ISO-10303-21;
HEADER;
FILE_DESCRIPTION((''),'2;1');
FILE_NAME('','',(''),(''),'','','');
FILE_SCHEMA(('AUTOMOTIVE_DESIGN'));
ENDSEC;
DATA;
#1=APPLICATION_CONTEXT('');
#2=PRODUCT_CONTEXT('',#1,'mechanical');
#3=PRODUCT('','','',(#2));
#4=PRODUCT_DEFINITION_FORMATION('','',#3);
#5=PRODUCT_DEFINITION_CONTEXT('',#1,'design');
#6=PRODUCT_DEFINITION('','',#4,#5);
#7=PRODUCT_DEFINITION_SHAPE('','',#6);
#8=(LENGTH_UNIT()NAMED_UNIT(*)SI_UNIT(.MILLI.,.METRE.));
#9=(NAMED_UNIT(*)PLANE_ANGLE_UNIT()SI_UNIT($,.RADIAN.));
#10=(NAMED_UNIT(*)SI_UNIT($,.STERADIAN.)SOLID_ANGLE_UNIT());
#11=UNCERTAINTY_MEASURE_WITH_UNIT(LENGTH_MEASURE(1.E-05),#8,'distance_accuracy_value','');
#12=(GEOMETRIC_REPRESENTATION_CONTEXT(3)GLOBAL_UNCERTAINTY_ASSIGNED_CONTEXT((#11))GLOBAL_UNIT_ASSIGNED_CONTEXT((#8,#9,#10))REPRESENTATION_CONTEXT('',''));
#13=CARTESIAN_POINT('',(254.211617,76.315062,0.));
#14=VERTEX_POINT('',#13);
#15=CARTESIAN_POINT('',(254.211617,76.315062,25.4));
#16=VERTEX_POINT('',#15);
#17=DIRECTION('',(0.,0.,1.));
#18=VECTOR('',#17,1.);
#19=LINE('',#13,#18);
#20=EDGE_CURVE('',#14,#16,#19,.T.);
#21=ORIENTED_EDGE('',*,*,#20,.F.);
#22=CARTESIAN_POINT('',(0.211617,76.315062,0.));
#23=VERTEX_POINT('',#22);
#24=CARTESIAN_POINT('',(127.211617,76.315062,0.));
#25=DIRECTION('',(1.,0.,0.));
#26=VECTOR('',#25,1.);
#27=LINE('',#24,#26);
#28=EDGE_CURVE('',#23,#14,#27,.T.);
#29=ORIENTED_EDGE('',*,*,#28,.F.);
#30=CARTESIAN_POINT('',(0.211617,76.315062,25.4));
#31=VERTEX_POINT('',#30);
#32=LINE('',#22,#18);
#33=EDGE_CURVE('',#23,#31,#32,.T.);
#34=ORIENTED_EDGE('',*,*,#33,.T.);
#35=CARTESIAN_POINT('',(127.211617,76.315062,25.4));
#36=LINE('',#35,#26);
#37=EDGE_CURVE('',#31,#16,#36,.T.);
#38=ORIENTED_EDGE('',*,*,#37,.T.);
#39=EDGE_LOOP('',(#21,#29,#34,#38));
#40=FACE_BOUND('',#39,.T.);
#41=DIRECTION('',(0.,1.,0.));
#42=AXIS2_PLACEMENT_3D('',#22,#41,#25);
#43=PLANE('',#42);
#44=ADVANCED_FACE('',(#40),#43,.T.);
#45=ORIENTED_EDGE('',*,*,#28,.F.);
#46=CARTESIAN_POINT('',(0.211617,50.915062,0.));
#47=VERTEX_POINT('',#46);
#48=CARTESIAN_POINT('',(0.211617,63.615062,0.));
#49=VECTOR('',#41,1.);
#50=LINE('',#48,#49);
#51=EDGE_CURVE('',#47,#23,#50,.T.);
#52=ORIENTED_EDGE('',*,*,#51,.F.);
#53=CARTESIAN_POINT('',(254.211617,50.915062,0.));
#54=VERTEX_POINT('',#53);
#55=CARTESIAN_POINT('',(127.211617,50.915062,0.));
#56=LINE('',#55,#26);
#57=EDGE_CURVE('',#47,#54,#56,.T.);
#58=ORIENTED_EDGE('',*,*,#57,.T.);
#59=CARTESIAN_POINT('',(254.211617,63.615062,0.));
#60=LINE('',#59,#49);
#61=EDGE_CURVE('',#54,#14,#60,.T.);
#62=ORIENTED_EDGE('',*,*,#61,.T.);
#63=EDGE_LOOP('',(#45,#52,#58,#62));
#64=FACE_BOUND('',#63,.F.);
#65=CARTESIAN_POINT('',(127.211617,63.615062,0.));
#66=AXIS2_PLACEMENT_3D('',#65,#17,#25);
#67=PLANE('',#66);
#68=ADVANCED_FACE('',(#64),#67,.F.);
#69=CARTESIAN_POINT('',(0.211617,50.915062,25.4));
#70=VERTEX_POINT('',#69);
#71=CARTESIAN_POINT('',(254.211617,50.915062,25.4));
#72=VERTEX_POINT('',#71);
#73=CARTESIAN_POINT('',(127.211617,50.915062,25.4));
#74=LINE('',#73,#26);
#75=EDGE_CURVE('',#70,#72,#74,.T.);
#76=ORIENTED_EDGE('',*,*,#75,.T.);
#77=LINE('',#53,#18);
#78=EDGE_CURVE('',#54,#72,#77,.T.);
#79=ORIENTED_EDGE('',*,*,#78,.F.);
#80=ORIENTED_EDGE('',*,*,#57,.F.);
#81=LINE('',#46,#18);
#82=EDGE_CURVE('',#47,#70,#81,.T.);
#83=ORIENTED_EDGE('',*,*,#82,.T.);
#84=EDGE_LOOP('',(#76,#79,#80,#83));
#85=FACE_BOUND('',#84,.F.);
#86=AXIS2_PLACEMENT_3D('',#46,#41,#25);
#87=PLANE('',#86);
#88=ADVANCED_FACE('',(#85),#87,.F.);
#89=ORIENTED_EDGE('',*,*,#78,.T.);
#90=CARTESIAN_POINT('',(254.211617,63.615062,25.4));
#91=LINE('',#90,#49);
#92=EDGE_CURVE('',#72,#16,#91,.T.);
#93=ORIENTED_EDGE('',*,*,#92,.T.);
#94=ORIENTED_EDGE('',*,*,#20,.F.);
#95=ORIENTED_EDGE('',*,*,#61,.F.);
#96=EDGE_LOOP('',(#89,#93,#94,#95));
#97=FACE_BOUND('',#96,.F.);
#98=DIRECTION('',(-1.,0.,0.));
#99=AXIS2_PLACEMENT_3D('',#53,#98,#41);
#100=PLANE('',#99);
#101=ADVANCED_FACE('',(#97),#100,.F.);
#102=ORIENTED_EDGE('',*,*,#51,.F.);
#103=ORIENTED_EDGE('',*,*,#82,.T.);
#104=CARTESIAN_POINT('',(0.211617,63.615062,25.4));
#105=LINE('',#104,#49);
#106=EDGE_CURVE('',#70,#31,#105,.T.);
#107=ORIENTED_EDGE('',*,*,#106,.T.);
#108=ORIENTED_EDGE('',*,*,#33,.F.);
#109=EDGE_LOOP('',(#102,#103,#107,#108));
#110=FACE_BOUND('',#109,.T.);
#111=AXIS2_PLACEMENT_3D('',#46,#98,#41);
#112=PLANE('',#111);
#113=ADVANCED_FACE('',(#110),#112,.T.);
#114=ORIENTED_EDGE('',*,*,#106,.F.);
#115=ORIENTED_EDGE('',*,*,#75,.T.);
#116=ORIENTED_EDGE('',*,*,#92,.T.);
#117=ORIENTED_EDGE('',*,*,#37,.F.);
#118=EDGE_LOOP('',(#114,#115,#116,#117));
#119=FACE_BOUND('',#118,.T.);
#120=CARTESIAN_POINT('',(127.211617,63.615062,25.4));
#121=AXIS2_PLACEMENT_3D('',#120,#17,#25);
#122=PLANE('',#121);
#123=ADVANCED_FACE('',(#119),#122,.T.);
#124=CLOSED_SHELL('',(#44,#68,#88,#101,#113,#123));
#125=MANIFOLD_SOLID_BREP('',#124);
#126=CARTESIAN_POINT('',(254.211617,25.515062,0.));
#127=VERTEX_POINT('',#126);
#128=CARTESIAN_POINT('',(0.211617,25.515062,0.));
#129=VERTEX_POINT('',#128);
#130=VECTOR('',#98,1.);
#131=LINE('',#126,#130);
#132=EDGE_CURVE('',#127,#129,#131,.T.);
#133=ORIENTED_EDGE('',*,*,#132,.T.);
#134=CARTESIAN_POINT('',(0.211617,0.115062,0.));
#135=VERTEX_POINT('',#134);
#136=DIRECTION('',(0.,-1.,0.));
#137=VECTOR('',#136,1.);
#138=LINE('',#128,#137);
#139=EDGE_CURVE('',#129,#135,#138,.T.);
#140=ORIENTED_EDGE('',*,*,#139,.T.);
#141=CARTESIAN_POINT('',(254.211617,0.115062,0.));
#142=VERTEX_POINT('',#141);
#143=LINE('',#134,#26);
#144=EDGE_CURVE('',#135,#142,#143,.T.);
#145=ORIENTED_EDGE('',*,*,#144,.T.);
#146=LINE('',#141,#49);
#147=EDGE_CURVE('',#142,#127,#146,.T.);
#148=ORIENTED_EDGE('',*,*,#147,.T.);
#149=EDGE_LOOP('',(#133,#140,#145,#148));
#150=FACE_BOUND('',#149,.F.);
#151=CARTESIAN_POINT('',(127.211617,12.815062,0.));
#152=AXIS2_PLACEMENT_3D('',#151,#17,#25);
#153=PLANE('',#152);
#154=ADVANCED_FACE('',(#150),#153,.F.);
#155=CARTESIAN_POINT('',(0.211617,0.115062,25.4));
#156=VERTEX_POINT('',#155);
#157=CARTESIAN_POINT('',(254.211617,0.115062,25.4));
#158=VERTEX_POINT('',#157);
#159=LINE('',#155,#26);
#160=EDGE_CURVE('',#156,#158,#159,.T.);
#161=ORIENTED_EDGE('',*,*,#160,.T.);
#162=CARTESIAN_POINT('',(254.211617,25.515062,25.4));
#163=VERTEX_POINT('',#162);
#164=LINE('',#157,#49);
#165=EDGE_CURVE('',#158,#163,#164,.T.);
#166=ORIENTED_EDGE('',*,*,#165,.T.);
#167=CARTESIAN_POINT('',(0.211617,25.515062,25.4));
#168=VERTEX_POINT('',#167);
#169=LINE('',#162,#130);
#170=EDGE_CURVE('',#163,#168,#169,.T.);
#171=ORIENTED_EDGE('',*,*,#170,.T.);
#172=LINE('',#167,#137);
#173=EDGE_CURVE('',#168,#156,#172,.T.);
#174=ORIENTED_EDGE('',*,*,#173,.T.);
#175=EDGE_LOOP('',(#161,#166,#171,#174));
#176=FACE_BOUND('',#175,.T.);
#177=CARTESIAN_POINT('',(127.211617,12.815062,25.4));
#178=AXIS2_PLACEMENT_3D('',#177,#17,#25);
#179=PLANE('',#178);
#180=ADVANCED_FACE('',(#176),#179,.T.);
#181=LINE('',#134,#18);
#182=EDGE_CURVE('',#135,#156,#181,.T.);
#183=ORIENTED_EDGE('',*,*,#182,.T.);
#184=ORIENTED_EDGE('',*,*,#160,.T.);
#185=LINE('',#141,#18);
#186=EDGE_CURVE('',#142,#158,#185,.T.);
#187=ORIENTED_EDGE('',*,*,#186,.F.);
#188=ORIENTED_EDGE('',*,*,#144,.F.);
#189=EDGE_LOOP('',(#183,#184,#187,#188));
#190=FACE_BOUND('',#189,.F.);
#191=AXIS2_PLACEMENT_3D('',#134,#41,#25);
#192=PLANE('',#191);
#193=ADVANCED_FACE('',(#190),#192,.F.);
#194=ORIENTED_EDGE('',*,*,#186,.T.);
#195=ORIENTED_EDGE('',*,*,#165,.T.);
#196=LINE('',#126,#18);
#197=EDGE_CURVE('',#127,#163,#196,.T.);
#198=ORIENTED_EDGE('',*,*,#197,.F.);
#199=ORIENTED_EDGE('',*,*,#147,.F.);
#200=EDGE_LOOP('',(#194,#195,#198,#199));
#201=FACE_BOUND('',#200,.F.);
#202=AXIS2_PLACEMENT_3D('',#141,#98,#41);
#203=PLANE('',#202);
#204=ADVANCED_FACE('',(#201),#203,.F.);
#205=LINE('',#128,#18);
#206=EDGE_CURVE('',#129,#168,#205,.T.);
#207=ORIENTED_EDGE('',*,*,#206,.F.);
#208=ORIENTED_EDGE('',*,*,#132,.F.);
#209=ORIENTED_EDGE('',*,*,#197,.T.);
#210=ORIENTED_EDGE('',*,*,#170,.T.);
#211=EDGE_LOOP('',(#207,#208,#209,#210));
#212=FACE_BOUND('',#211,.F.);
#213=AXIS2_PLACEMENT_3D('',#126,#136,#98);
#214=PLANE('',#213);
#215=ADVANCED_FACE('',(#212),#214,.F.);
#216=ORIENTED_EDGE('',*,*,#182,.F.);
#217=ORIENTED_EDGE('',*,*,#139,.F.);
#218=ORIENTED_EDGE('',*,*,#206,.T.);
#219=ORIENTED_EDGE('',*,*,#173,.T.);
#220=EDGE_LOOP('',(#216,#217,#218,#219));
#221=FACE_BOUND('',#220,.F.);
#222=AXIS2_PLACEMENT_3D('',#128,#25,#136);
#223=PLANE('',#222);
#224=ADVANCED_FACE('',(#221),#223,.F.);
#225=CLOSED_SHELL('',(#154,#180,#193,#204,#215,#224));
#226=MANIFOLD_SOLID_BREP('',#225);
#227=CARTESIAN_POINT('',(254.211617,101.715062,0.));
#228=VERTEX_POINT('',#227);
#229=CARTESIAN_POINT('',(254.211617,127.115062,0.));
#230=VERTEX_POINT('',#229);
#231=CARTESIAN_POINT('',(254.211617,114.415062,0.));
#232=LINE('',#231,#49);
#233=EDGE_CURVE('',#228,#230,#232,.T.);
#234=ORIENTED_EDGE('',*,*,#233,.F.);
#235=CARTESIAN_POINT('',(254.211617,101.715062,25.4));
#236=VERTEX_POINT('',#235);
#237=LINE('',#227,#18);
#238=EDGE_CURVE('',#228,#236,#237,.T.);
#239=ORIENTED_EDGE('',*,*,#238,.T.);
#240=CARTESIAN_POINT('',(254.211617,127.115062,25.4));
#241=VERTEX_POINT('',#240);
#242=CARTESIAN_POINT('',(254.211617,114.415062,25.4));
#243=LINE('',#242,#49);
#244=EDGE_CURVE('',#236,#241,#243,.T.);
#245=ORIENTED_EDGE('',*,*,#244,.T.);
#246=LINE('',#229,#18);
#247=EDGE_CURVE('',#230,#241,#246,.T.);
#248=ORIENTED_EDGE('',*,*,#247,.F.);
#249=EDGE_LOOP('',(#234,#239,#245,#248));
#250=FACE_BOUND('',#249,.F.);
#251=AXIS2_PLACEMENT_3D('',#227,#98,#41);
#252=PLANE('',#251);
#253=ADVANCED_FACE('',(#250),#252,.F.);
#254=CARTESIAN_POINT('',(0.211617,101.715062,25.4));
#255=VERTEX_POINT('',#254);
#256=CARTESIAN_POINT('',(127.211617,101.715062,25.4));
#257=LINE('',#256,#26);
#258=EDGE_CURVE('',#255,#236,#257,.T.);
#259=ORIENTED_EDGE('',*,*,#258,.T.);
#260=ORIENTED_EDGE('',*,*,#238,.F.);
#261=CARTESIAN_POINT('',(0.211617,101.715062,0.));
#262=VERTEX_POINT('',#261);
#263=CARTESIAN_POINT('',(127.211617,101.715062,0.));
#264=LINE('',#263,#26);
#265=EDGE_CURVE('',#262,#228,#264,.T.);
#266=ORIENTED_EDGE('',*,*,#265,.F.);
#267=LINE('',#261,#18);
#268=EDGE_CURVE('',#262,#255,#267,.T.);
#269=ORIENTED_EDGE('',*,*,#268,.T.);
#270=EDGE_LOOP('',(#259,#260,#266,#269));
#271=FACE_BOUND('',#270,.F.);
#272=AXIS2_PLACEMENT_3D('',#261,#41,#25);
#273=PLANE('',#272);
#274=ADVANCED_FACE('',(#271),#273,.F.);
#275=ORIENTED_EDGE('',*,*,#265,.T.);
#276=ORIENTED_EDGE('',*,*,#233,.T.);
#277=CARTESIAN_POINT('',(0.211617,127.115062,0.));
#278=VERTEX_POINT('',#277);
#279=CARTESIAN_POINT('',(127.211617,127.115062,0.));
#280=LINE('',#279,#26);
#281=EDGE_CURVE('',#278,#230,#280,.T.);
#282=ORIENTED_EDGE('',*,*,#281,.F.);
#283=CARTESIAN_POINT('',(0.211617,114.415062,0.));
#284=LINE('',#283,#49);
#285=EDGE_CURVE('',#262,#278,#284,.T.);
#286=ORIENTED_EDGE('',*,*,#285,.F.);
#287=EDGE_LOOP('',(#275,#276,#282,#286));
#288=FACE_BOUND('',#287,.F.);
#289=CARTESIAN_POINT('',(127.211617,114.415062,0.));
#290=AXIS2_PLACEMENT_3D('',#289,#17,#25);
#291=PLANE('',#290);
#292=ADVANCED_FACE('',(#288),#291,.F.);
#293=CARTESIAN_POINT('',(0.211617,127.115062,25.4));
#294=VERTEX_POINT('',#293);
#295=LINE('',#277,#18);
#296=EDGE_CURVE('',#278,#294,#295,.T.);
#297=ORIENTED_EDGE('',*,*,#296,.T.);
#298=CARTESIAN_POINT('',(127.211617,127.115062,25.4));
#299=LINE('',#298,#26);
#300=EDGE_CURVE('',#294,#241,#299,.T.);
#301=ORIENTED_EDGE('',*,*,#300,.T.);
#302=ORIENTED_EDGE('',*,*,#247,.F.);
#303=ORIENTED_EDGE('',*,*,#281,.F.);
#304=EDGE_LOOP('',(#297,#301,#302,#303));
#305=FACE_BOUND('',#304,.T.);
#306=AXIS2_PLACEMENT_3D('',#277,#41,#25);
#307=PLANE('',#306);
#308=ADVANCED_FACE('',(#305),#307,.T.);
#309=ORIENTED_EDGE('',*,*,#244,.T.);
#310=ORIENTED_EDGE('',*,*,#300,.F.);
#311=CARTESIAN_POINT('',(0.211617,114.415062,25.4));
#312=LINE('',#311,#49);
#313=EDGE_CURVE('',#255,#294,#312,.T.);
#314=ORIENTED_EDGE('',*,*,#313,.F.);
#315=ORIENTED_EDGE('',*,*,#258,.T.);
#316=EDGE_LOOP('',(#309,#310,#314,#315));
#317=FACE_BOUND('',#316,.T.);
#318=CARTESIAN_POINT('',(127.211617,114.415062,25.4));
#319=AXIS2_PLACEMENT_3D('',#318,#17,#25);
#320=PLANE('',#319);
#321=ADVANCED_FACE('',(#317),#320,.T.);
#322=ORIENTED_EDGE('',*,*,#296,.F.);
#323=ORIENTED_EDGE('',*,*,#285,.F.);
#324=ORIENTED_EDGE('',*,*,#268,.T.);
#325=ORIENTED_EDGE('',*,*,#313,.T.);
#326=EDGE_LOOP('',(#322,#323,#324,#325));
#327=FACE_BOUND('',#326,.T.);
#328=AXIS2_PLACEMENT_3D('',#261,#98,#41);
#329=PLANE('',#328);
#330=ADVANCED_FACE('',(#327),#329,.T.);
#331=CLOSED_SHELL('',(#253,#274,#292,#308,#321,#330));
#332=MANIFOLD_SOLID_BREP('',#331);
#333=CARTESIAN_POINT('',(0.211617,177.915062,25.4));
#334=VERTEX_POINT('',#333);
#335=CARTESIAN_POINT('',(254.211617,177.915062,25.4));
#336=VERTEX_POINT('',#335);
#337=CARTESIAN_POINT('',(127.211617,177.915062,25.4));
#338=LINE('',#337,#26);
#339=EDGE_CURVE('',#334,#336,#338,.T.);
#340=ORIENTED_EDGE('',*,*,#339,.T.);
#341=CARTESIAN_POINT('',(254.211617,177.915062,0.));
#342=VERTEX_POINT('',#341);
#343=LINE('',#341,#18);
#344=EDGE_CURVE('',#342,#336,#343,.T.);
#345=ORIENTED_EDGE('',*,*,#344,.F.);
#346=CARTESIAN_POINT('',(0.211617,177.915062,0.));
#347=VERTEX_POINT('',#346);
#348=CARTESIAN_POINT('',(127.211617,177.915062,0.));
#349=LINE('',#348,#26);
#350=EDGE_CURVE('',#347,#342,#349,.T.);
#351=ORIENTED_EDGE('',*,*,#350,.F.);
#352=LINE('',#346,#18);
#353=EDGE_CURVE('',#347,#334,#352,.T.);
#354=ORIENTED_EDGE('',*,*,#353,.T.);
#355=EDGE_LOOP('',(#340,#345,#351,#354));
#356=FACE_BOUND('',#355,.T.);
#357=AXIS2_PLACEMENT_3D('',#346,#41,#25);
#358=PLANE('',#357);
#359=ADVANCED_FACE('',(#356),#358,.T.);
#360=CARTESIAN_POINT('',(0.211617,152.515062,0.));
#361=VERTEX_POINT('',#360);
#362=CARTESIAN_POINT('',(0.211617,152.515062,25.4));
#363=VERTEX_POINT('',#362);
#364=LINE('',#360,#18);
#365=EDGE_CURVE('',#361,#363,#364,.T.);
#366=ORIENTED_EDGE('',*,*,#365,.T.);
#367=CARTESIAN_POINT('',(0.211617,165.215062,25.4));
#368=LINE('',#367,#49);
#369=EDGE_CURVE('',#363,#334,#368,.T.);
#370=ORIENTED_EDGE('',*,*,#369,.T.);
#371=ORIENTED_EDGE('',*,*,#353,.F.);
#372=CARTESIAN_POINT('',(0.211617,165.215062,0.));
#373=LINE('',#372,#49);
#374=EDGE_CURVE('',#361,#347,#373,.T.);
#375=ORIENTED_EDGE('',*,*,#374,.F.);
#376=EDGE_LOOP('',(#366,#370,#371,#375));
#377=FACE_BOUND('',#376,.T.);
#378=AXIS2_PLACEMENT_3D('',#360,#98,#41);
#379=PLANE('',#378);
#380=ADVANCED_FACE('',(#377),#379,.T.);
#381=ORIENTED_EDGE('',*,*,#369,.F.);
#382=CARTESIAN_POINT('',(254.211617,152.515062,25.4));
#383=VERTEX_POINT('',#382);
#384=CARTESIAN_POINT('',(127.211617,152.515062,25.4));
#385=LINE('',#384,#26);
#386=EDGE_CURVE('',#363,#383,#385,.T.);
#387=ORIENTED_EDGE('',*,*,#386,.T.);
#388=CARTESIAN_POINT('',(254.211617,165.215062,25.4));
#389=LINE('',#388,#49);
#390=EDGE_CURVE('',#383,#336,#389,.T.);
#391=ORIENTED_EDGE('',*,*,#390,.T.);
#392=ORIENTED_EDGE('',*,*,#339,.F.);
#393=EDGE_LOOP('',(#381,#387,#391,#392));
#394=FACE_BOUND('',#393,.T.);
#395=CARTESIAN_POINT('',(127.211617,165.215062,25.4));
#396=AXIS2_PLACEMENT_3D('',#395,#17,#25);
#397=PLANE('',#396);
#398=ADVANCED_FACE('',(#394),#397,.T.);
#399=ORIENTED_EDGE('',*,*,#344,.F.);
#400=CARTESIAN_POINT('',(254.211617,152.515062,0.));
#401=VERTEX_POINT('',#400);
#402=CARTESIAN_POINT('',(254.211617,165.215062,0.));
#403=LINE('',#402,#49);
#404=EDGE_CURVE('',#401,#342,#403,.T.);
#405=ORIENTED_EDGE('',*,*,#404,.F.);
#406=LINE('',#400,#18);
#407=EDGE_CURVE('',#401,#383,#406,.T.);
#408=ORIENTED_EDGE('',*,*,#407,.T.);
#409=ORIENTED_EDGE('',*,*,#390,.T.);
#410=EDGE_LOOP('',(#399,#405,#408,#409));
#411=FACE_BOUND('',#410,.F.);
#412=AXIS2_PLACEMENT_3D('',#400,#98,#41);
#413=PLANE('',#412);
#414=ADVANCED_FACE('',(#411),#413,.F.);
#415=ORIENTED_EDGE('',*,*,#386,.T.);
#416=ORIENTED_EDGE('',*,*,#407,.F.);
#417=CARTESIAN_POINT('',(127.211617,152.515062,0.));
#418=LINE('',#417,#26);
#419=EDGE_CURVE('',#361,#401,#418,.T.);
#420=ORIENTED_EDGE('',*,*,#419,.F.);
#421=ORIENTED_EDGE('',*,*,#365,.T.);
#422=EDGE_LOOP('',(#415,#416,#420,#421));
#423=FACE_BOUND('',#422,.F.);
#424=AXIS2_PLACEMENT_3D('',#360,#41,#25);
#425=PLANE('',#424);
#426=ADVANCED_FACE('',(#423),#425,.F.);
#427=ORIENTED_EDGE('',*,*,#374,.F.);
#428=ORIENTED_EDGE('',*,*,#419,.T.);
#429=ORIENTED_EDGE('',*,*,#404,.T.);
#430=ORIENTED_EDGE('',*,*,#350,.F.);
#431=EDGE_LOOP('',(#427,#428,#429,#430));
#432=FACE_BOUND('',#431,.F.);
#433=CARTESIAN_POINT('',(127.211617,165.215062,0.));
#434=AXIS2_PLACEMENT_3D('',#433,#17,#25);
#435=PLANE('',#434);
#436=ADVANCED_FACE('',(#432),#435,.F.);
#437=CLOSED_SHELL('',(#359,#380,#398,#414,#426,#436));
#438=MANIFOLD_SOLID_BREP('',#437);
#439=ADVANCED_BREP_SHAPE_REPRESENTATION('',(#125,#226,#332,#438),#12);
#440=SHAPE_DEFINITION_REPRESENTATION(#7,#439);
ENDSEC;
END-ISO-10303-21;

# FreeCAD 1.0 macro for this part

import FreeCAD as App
import Part
import Sketcher
from FreeCAD import Vector
Q = App.Units.Quantity


def add_polygon(sketch, points):
    """Adds a closed chain of lines whose ends are joined by coincident constraints."""
    first, n = sketch.GeometryCount, len(points)
    for a, b in zip(points, points[1:] + points[:1]):
        sketch.addGeometry(Part.LineSegment(App.Vector(*a, 0), App.Vector(*b, 0)), False)
    for i in range(n):
        sketch.addConstraint(Sketcher.Constraint("Coincident", first + i, 2, first + (i + 1) % n, 1))

doc = App.newDocument("Part")
body = doc.addObject("PartDesign::Body", "Body")
body.AllowCompound = True

# Sketch on XY plane
sketch1 = body.newObject("Sketcher::SketchObject", "Sketch")
sketch1.AttachmentSupport = (doc.getObject("XY_Plane"), [""])
sketch1.MapMode = "FlatFace"
add_polygon(sketch1, [(0, 26), (0, 0), (254, 0), (254, 26)])  # lines 0-3
add_polygon(sketch1, [(0, 76), (0, 51), (254, 51), (254, 76)])  # lines 4-7
add_polygon(sketch1, [(0, 127), (0, 102), (254, 102), (254, 127)])  # lines 8-11
add_polygon(sketch1, [(0, 178), (0, 153), (254, 153), (254, 178)])  # lines 12-15
sketch1.addConstraint([
    Sketcher.Constraint("Vertical", 0),
    Sketcher.Constraint("Horizontal", 1),
    Sketcher.Constraint("Vertical", 2),
    Sketcher.Constraint("Horizontal", 3),
    Sketcher.Constraint("Vertical", 4),
    Sketcher.Constraint("Horizontal", 5),
    Sketcher.Constraint("Vertical", 6),
    Sketcher.Constraint("Horizontal", 7),
    Sketcher.Constraint("Vertical", 8),
    Sketcher.Constraint("Horizontal", 9),
    Sketcher.Constraint("Vertical", 10),
    Sketcher.Constraint("Horizontal", 11),
    Sketcher.Constraint("Vertical", 12),
    Sketcher.Constraint("Horizontal", 13),
    Sketcher.Constraint("Vertical", 14),
    Sketcher.Constraint("Horizontal", 15),
    Sketcher.Constraint("Vertical", 3, 2, 4, 2),
    Sketcher.Constraint("Vertical", 2, 2, 5, 2),
    Sketcher.Constraint("Vertical", 7, 2, 8, 2),
    Sketcher.Constraint("Vertical", 6, 2, 9, 2),
    Sketcher.Constraint("Vertical", 11, 2, 12, 2),
    Sketcher.Constraint("Vertical", 10, 2, 13, 2),
    Sketcher.Constraint("Equal", 2, 4),
    Sketcher.Constraint("Equal", 6, 8),
    Sketcher.Constraint("Equal", 10, 12),
    Sketcher.Constraint("DistanceX", 1, 1, 1, 2, Q("10 in")),
    Sketcher.Constraint("DistanceY", 0, 2, 0, 1, Q("1 in")),
    Sketcher.Constraint("DistanceY", 3, 2, 4, 2, Q("1 in")),
    Sketcher.Constraint("DistanceY", 7, 2, 8, 2, Q("1 in")),
    Sketcher.Constraint("DistanceY", 11, 2, 12, 2, Q("1 in")),
    Sketcher.Constraint("DistanceY", -1, 1, 6, 2, Q("76.315062 mm")),
    Sketcher.Constraint("DistanceX", -1, 1, 0, 2, Q("0.211617 mm")),
])
pad1 = body.newObject("PartDesign::Pad", "Pad")
pad1.Profile = sketch1
pad1.Length = Q("1 in")

doc.recompute()
